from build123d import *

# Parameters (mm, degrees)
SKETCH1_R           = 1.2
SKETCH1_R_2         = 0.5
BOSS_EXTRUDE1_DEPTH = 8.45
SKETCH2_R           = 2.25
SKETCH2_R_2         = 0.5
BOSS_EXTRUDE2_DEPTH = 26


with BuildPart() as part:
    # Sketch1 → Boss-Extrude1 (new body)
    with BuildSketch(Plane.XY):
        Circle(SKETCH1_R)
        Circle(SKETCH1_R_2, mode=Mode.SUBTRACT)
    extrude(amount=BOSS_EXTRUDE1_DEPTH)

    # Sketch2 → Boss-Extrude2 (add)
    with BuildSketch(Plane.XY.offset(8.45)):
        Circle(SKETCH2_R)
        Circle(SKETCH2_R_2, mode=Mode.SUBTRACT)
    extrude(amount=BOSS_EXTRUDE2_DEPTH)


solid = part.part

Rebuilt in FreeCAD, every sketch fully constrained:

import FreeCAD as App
import Part
import Sketcher
from FreeCAD import Vector

doc = App.newDocument("Part")
body = doc.addObject("PartDesign::Body", "Body")

# Sketch on XY plane
sketch1 = doc.addObject("Sketcher::SketchObject", "Sketch")
body.addObject(sketch1)
sketch1.AttachmentSupport = (doc.XY_Plane, [""])
sketch1.MapMode = "FlatFace"
sketch1.addGeometry([
    Part.Circle(Vector(0, 0, 0), Vector(0, 0, 1), 1.2),
    Part.Circle(Vector(0, 0, 0), Vector(0, 0, 1), 0.5),
], False)
sketch1.addConstraint([
    Sketcher.Constraint("Coincident", 0, 3, -1, 1),
    Sketcher.Constraint("Coincident", 1, 3, -1, 1),
    Sketcher.Constraint("Diameter", 1, 1.0),
    Sketcher.Constraint("Diameter", 0, 2.4),
])
pad1 = doc.addObject("PartDesign::Pad", "Pad")
body.addObject(pad1)
pad1.Profile = sketch1
pad1.Length = 8.45

# Sketch on XY plane
sketch2 = doc.addObject("Sketcher::SketchObject", "Sketch001")
body.addObject(sketch2)
sketch2.AttachmentSupport = (doc.XY_Plane, [""])
sketch2.MapMode = "FlatFace"
sketch2.AttachmentOffset = App.Placement(Vector(0, 0, 8.45), App.Rotation())
sketch2.addGeometry([
    Part.Circle(Vector(0, 0, 0), Vector(0, 0, 1), 2.25),
    Part.Circle(Vector(0, 0, 0), Vector(0, 0, 1), 0.5),
], False)
sketch2.addConstraint([
    Sketcher.Constraint("Coincident", 0, 3, -1, 1),
    Sketcher.Constraint("Coincident", 1, 3, -1, 1),
    Sketcher.Constraint("Diameter", 1, 1.0),
    Sketcher.Constraint("Diameter", 0, 4.5),
])
pad2 = doc.addObject("PartDesign::Pad", "Pad001")
body.addObject(pad2)
pad2.Profile = sketch2
pad2.Length = 26

doc.recompute()
